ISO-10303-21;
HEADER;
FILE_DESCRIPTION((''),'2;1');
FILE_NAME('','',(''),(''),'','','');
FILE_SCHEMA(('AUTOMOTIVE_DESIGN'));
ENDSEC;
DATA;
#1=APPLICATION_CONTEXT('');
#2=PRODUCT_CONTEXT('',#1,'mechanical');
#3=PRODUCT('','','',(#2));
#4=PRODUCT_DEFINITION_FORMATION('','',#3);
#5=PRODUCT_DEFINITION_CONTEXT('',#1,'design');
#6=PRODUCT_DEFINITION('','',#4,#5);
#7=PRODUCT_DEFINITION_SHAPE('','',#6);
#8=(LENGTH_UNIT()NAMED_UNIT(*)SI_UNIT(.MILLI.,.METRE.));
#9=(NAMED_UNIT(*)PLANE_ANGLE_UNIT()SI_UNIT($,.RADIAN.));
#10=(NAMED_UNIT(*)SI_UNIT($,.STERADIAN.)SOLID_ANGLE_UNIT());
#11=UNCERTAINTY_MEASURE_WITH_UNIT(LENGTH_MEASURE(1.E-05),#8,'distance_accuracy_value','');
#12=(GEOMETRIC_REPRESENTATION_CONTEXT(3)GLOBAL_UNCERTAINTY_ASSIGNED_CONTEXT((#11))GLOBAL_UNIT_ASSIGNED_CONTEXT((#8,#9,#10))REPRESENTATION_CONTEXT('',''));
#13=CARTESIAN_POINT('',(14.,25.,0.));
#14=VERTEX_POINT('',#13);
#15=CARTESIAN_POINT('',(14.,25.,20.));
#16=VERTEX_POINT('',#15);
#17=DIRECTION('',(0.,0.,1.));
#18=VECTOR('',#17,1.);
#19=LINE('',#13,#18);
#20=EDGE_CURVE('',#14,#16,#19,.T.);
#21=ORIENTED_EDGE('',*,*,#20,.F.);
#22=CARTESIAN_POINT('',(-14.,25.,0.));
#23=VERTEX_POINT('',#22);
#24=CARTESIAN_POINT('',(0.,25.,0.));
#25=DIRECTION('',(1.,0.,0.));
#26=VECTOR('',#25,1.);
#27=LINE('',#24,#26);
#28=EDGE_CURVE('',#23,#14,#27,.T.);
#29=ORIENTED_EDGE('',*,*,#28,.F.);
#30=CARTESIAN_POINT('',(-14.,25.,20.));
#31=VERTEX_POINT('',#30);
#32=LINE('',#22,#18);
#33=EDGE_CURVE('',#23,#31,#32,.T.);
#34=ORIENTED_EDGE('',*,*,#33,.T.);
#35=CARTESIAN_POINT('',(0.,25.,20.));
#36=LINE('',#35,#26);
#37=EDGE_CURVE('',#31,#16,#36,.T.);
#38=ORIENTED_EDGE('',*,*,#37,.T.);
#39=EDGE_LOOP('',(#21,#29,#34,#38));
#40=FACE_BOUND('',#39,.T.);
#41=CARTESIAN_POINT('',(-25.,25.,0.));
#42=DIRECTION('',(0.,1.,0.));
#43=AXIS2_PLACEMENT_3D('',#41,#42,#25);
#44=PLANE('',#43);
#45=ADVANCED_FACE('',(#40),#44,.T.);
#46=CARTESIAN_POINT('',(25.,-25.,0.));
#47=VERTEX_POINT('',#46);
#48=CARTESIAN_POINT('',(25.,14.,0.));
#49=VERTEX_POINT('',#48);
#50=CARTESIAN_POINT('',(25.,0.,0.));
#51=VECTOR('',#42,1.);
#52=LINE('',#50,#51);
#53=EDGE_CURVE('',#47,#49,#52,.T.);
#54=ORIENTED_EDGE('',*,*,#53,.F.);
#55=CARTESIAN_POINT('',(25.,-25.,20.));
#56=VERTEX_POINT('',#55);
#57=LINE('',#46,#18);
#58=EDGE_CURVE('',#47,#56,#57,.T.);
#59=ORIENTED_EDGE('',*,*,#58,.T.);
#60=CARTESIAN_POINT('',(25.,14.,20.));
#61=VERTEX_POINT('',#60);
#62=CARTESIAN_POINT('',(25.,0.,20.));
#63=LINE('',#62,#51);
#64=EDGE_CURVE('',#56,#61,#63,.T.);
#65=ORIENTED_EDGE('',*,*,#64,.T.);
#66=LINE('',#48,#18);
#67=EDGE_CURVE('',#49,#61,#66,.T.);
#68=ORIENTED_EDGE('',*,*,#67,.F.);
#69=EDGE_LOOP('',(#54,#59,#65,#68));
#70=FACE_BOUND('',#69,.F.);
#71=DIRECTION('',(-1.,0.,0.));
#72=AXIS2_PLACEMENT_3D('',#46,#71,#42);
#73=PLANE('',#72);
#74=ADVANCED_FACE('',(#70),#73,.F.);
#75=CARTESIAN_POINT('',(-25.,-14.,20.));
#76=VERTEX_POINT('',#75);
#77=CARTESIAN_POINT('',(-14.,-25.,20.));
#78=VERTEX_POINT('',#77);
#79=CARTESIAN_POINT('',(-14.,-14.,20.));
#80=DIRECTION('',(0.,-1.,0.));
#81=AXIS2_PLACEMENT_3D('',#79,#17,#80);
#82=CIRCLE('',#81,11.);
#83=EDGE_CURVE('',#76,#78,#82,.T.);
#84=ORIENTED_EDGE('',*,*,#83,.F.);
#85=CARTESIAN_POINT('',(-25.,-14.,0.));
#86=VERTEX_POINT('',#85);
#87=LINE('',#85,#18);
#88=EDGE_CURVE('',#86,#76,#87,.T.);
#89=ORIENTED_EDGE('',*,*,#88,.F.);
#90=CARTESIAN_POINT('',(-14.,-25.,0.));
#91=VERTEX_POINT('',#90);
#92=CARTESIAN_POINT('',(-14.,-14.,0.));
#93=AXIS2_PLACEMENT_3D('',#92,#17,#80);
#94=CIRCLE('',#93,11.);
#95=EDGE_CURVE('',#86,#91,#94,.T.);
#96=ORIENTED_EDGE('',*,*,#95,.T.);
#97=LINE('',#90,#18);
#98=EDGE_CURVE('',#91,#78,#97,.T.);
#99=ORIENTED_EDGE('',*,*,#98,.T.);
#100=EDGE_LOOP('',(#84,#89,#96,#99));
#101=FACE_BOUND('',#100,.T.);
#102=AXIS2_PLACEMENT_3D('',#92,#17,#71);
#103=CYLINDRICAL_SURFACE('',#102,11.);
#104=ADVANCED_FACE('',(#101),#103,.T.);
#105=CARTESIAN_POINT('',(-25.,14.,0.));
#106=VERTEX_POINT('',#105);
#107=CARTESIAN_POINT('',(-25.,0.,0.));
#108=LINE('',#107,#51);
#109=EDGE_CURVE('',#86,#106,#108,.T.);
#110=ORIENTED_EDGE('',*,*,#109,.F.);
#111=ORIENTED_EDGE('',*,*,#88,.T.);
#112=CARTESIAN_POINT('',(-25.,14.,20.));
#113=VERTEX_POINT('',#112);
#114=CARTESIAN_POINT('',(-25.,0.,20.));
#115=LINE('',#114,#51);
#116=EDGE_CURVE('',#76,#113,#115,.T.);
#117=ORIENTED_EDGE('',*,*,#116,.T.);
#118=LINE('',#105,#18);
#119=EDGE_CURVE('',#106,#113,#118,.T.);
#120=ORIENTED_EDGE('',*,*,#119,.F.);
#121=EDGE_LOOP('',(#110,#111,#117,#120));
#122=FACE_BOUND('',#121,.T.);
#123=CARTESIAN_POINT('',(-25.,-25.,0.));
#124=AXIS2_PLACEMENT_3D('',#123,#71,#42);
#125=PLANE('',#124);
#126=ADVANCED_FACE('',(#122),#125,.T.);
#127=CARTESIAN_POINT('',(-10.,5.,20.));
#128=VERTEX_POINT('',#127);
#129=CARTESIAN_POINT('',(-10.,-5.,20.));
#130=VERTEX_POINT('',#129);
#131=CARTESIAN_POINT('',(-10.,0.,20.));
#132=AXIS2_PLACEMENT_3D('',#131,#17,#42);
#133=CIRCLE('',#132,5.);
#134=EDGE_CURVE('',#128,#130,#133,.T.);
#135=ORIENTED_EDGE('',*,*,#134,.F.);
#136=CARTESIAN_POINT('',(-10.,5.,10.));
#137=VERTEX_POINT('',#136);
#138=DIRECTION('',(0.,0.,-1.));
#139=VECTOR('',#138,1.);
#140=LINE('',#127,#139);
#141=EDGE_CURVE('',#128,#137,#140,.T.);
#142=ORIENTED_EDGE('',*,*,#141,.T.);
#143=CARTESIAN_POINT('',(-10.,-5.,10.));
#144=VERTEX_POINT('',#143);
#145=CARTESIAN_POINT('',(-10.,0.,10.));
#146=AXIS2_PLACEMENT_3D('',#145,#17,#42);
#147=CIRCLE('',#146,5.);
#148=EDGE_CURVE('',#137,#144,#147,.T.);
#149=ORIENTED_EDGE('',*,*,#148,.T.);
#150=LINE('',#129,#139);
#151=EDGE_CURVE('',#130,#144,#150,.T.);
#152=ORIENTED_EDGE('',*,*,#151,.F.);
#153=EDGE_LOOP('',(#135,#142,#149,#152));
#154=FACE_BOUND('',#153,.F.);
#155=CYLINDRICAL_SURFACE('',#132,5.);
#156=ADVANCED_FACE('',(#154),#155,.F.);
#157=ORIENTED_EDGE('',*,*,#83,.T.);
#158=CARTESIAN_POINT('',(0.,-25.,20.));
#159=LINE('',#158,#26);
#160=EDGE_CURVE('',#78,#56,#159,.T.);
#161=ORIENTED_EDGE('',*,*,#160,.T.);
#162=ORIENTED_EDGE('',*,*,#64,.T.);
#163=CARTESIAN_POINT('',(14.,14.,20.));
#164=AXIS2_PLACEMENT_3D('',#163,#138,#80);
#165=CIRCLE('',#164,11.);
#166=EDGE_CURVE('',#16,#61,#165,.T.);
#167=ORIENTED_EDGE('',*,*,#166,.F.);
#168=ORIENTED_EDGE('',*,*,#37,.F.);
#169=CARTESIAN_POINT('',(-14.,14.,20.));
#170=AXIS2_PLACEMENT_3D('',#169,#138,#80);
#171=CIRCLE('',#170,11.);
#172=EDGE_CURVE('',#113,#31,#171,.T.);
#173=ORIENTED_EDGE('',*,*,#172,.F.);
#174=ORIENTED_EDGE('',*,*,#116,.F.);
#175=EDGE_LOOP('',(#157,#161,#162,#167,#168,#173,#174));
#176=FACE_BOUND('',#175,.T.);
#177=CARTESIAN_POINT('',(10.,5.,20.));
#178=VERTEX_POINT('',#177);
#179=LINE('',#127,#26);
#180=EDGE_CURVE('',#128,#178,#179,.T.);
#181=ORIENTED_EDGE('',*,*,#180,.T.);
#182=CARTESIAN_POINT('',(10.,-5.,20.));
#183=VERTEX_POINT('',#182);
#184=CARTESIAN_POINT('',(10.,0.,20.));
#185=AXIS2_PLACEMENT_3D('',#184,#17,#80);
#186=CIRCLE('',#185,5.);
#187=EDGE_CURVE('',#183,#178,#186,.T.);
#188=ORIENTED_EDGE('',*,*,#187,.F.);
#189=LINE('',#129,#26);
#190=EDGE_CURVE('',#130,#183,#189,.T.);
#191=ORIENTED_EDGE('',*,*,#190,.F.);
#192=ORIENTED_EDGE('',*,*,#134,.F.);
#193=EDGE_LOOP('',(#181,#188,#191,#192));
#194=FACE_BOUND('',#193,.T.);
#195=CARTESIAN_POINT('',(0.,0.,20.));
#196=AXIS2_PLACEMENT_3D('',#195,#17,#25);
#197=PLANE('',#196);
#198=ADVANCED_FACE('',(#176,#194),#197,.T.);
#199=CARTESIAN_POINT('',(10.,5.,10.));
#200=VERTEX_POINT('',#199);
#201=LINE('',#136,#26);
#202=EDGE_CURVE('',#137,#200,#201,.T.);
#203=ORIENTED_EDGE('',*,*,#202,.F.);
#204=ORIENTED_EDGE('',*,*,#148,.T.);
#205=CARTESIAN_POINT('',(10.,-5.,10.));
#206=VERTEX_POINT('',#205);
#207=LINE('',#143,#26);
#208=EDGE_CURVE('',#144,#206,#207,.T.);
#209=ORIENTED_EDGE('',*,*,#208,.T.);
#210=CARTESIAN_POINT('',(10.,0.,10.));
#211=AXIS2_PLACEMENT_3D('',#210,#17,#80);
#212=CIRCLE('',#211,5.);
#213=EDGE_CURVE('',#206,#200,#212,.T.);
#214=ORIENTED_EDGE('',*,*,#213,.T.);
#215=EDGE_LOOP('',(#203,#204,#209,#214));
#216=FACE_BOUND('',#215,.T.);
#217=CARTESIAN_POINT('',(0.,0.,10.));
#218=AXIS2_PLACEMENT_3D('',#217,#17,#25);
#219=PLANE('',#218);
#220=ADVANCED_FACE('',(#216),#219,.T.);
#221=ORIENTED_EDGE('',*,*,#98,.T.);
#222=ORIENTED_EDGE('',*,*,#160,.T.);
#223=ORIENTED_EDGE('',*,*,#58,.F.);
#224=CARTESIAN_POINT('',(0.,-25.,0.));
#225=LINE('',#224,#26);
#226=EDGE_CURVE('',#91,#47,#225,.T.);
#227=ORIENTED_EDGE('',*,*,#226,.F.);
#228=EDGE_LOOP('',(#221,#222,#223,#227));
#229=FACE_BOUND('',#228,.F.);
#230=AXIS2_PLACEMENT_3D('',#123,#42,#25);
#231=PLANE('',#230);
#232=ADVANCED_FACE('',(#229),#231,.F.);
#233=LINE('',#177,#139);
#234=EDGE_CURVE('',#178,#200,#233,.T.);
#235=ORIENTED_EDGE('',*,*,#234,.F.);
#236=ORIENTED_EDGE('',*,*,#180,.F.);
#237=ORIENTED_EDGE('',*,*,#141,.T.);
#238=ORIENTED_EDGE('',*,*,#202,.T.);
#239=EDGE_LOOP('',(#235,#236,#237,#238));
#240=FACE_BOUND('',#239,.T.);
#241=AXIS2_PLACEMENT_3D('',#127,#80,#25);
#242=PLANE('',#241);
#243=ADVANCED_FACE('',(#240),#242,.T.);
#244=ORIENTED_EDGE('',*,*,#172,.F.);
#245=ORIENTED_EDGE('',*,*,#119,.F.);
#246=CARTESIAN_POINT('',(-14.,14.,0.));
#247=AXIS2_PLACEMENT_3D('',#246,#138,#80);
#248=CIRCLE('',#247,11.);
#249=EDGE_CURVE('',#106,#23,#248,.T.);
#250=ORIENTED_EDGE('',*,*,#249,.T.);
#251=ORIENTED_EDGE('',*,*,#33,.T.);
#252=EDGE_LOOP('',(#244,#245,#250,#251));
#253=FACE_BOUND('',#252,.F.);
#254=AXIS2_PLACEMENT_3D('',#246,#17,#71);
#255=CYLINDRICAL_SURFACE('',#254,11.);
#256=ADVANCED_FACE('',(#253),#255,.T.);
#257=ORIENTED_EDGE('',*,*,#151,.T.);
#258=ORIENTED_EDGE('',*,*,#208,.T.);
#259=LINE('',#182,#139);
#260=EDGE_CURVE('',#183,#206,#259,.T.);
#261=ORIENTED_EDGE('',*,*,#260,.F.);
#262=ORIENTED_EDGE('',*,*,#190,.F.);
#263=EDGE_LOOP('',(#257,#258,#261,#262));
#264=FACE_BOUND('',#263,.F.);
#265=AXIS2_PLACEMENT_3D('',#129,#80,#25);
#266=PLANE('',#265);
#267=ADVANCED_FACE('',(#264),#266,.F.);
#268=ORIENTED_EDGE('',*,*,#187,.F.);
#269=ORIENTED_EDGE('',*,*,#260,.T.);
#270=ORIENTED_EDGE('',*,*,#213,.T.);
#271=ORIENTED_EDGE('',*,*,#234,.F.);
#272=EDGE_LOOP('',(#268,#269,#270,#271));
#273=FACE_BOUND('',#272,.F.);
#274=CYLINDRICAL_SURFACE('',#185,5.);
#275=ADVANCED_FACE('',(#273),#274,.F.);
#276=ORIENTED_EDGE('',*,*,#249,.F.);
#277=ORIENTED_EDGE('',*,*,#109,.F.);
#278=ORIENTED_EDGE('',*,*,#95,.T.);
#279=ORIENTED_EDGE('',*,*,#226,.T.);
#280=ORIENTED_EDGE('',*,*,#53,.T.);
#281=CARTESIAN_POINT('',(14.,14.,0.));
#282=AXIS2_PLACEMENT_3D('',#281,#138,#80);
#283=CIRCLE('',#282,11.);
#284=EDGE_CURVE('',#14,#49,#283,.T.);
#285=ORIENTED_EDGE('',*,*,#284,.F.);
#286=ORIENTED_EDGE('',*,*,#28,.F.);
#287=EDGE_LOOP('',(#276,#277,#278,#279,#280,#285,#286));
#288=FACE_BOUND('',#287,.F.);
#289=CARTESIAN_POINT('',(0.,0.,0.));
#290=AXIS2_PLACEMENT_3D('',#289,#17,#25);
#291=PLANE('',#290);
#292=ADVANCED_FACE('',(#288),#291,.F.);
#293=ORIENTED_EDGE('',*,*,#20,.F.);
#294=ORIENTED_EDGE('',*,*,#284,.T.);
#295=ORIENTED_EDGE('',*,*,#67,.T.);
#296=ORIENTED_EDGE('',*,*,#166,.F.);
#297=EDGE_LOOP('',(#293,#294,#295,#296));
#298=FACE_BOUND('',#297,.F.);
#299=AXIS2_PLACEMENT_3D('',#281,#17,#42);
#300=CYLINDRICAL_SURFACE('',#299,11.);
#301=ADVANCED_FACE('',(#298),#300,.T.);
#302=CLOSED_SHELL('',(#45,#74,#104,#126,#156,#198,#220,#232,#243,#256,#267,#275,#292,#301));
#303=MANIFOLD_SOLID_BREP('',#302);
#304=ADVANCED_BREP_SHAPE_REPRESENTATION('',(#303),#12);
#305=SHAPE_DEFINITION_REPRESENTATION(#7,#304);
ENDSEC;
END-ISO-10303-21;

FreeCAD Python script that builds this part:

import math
import FreeCAD as App
import Part
import Sketcher

V = App.Vector


def edges_at(feature, points):
    """Names of the edges that pass closest to the given points."""
    edges = feature.Shape.Edges
    near = lambda p: min(range(len(edges)), key=lambda i: edges[i].distToShape(Part.Vertex(*p))[0])
    return sorted({f"Edge{near(p) + 1}" for p in points})


def add_polygon(sketch, points):
    """Adds a closed chain of lines whose ends are joined by coincident constraints."""
    first, n = sketch.GeometryCount, len(points)
    for a, b in zip(points, points[1:] + points[:1]):
        sketch.addGeometry(Part.LineSegment(App.Vector(*a, 0), App.Vector(*b, 0)), False)
    for i in range(n):
        sketch.addConstraint(Sketcher.Constraint("Coincident", first + i, 2, first + (i + 1) % n, 1))

doc = App.newDocument("Part")
body = doc.addObject("PartDesign::Body", "Body")

# Sketch on XY plane
sketch1 = body.newObject("Sketcher::SketchObject", "Sketch")
sketch1.AttachmentSupport = (doc.getObject("XY_Plane"), [""])
sketch1.MapMode = "FlatFace"
add_polygon(sketch1, [(-25, 25), (-25, -25), (25, -25), (25, 25)])  # lines 0-3
sketch1.addConstraint([
    Sketcher.Constraint("Vertical", 0),
    Sketcher.Constraint("Horizontal", 1),
    Sketcher.Constraint("Vertical", 2),
    Sketcher.Constraint("Horizontal", 3),
    Sketcher.Constraint("Symmetric", 0, 2, 2, 2, -1, 1),
    Sketcher.Constraint("Equal", 3, 0),
    Sketcher.Constraint("DistanceX", 1, 1, 1, 2, 50.0),
])
pad1 = body.newObject("PartDesign::Pad", "Pad")
pad1.Profile = sketch1
pad1.Length = 20

# Sketch on XY plane
sketch2 = body.newObject("Sketcher::SketchObject", "Sketch001")
sketch2.AttachmentSupport = (doc.getObject("XY_Plane"), [""])
sketch2.MapMode = "FlatFace"
sketch2.AttachmentOffset = App.Placement(V(0, 0, 20), App.Rotation())
sketch2.addGeometry([
    Part.ArcOfCircle(Part.Circle(V(-10, 0, 0), V(0, 0, 1), 5), math.radians(90), math.radians(270)),
    Part.LineSegment(V(-10, -5, 0), V(10, -5, 0)),
    Part.ArcOfCircle(Part.Circle(V(10, 0, 0), V(0, 0, 1), 5), math.radians(-90), math.radians(90)),
    Part.LineSegment(V(10, 5, 0), V(-10, 5, 0)),
], False)
sketch2.addConstraint([
    Sketcher.Constraint("Tangent", 0, 2, 1, 1),
    Sketcher.Constraint("Tangent", 1, 2, 2, 1),
    Sketcher.Constraint("Tangent", 2, 2, 3, 1),
    Sketcher.Constraint("Tangent", 3, 2, 0, 1),
    Sketcher.Constraint("Horizontal", 1),
    Sketcher.Constraint("Horizontal", 3),
    Sketcher.Constraint("Symmetric", 0, 3, 2, 3, -1, 1),
    Sketcher.Constraint("Radius", 0, 5.0),
    Sketcher.Constraint("DistanceX", 1, 1, 1, 2, 20.0),
])
pocket1 = body.newObject("PartDesign::Pocket", "Pocket")
pocket1.Profile = sketch2
pocket1.Length = 10
doc.recompute()

fillet = body.newObject("PartDesign::Fillet", "Fillet")
fillet.Base = (pocket1, edges_at(pocket1, [(-25, -25, 10), (-25, 25, 10), (25, 25, 10)]))
fillet.Radius = 11

doc.recompute()
